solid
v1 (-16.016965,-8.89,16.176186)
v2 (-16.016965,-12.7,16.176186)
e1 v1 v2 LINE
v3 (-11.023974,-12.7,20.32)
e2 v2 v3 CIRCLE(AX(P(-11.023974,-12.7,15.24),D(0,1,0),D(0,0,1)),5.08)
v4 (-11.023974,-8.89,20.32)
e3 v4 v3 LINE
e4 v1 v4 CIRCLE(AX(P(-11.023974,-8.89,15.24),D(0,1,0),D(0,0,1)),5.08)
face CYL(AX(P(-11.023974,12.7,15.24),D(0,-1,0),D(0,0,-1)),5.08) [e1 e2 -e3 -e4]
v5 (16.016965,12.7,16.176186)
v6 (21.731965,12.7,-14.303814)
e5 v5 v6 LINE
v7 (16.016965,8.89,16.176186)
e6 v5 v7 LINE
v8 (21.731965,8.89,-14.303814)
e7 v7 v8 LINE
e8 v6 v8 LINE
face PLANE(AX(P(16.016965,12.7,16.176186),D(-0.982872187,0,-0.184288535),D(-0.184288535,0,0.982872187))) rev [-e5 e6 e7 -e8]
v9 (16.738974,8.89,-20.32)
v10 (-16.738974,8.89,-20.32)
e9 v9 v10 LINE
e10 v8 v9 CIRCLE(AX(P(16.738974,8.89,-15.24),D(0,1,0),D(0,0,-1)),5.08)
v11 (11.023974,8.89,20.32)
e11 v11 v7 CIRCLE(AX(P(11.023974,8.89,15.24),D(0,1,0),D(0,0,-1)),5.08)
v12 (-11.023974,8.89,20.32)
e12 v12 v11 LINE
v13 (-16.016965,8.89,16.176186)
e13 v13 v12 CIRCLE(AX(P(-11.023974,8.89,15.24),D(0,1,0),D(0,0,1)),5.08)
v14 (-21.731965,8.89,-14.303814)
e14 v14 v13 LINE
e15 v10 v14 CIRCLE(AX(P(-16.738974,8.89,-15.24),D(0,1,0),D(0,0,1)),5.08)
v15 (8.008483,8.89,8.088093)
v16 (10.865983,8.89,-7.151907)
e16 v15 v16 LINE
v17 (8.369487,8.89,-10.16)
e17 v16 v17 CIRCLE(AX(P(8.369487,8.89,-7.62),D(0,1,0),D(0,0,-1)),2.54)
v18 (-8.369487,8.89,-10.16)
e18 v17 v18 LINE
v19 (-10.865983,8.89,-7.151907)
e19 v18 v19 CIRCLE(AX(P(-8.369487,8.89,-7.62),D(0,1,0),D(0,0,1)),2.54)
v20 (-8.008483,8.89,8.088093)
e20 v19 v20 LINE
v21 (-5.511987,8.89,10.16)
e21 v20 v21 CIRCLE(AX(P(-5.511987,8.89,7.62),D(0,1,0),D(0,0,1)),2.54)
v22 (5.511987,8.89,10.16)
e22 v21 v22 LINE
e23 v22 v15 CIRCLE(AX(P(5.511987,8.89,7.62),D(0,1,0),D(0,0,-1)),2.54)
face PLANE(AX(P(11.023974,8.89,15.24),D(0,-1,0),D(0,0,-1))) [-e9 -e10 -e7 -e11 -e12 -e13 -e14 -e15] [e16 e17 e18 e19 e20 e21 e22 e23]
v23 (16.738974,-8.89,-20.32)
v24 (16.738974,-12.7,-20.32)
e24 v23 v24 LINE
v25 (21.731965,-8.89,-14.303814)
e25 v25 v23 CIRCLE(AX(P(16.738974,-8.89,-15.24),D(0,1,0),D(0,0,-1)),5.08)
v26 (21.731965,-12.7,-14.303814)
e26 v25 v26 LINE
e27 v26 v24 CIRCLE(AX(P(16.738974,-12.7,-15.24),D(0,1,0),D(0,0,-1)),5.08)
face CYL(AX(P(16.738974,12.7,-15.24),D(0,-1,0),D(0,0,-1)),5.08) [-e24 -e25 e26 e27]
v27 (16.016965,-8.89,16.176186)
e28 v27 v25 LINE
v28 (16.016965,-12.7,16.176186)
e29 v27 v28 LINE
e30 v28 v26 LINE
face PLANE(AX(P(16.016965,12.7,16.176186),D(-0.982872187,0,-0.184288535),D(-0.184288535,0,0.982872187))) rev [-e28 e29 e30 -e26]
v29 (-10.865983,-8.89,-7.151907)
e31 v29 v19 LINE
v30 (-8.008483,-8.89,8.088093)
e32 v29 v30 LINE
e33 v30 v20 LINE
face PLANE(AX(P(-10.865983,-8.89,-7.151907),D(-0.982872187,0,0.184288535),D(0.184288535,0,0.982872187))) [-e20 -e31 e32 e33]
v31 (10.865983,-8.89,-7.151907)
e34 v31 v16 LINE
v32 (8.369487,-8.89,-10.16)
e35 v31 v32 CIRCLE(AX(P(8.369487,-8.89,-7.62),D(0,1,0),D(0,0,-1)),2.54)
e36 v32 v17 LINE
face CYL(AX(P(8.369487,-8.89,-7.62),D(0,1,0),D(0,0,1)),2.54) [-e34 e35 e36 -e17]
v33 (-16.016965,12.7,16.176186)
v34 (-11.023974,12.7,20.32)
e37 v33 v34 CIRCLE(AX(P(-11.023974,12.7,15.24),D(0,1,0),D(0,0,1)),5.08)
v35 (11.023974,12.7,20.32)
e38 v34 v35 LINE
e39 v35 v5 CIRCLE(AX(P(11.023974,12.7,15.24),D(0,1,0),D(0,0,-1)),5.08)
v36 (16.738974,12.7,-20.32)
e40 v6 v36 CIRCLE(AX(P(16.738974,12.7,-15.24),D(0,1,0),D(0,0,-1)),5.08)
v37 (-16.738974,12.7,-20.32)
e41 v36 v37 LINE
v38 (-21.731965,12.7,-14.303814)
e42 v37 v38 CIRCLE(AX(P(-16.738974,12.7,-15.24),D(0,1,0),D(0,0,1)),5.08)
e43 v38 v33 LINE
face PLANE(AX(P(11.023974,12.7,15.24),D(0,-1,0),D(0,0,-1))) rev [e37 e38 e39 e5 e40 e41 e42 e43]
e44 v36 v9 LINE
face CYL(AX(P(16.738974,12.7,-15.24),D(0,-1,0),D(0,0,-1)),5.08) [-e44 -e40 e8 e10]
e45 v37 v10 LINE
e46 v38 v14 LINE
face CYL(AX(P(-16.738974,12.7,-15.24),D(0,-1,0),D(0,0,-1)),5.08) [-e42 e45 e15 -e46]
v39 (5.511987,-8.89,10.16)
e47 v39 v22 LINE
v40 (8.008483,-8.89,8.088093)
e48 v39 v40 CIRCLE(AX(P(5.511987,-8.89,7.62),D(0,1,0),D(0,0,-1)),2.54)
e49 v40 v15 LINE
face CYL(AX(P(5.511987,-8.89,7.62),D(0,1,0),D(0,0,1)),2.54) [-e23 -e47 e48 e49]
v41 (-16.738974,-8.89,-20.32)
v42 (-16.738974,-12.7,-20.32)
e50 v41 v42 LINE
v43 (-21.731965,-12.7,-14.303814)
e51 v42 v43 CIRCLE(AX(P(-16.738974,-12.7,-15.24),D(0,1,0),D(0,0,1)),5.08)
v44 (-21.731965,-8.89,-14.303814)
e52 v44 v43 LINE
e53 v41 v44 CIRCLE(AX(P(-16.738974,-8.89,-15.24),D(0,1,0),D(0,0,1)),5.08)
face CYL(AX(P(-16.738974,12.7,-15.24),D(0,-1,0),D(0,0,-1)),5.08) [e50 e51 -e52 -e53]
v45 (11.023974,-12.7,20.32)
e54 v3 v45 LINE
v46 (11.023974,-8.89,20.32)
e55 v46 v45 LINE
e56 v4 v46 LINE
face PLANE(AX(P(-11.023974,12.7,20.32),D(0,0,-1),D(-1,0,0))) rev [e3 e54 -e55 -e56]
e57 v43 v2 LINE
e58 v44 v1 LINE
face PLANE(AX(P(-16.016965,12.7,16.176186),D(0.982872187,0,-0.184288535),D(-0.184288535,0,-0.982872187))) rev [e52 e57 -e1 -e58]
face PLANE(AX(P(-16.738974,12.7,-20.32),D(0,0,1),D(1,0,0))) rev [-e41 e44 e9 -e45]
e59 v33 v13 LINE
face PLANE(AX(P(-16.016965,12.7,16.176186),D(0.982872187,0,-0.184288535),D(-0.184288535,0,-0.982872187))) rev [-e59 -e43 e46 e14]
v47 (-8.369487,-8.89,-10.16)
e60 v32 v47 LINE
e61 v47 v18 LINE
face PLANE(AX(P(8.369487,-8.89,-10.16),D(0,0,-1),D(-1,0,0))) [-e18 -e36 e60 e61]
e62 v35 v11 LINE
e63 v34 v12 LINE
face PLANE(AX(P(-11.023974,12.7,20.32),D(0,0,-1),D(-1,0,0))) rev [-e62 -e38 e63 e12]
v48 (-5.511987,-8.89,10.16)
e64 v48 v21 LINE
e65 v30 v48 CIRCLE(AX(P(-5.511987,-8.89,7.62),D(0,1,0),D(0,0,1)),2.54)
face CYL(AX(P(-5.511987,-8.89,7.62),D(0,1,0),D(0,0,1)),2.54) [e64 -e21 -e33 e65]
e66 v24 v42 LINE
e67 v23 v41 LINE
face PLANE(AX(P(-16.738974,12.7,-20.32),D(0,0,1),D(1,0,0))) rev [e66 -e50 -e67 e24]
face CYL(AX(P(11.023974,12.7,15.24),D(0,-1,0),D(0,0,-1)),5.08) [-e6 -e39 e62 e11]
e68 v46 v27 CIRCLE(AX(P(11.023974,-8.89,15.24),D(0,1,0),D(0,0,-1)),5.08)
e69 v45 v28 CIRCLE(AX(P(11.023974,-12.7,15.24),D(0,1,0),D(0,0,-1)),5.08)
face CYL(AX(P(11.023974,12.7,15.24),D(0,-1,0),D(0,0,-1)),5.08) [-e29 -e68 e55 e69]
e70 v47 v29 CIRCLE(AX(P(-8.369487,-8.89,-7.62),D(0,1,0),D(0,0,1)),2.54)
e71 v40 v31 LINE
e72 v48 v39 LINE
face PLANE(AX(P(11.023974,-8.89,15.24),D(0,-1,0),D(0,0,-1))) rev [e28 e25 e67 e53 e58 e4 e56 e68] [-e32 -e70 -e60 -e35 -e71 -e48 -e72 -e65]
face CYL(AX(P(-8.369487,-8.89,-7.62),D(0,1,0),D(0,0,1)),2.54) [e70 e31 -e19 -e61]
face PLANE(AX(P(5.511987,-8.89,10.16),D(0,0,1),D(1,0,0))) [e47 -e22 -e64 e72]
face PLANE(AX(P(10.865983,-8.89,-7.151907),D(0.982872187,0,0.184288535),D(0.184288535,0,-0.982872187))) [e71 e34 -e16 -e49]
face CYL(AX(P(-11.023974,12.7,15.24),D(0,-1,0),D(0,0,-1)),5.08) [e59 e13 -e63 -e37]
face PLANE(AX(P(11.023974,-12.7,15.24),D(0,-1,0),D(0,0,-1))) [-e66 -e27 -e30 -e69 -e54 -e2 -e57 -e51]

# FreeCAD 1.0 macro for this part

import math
import FreeCAD as App
import Part
import Sketcher
from FreeCAD import Vector
Q = App.Units.Quantity

doc = App.newDocument("Part")
params = doc.addObject("Spreadsheet::Sheet", "Params")
for row, (alias, value) in enumerate([
    ("sketch1_radius", "0.2 in"),
    ("pad1_length", "1 in"),
    ("sketch2_radius", "0.2 in"),
    ("sketch2_radius2", "0.1 in"),
    ("pocket1_length", "0.7 in"),
], start=1):
    params.set(f"A{row}", alias)
    params.set(f"B{row}", "=" + value)
    params.setAlias(f"B{row}", alias)

body = doc.addObject("PartDesign::Body", "Body")

# Sketch on XZ plane
sketch1 = doc.addObject("Sketcher::SketchObject", "Sketch")
body.addObject(sketch1)
sketch1.AttachmentSupport = (doc.XZ_Plane, [""])
sketch1.MapMode = "FlatFace"
sketch1.addGeometry(Part.LineSegment(Vector(16.738974, -20.32, 0), Vector(-16.738974, -20.32, 0)), False)
sketch1.addGeometry(Part.ArcOfCircle(Part.Circle(Vector(-16.738974, -15.24, 0), Vector(0, 0, 1), 5.08), math.radians(169.380345), math.radians(270)), False)
sketch1.addGeometry(Part.LineSegment(Vector(-21.731965, -14.303814, 0), Vector(-16.016965, 16.176186, 0)), False)
sketch1.addGeometry(Part.ArcOfCircle(Part.Circle(Vector(-11.023974, 15.24, 0), Vector(0, 0, 1), 5.08), math.radians(90), math.radians(169.380345)), False)
sketch1.addGeometry(Part.LineSegment(Vector(-11.023974, 20.32, 0), Vector(11.023974, 20.32, 0)), False)
sketch1.addGeometry(Part.ArcOfCircle(Part.Circle(Vector(11.023974, 15.24, 0), Vector(0, 0, 1), 5.08), math.radians(10.619655), math.radians(90)), False)
sketch1.addGeometry(Part.LineSegment(Vector(16.016965, 16.176186, 0), Vector(21.731965, -14.303814, 0)), False)
sketch1.addGeometry(Part.ArcOfCircle(Part.Circle(Vector(16.738974, -15.24, 0), Vector(0, 0, 1), 5.08), math.radians(-90), math.radians(10.619655)), False)
sketch1.addConstraint(Sketcher.Constraint("Tangent", 0, 2, 1, 2))
sketch1.addConstraint(Sketcher.Constraint("Tangent", 1, 1, 2, 1))
sketch1.addConstraint(Sketcher.Constraint("Tangent", 2, 2, 3, 2))
sketch1.addConstraint(Sketcher.Constraint("Tangent", 3, 1, 4, 1))
sketch1.addConstraint(Sketcher.Constraint("Tangent", 4, 2, 5, 2))
sketch1.addConstraint(Sketcher.Constraint("Tangent", 5, 1, 6, 1))
sketch1.addConstraint(Sketcher.Constraint("Tangent", 6, 2, 7, 2))
sketch1.addConstraint(Sketcher.Constraint("Tangent", 7, 1, 0, 1))
sketch1.addConstraint(Sketcher.Constraint("Horizontal", 0))
sketch1.addConstraint(Sketcher.Constraint("Horizontal", 4))
sketch1.addConstraint(Sketcher.Constraint("Equal", 1, 3))
sketch1.addConstraint(Sketcher.Constraint("Equal", 3, 5))
sketch1.addConstraint(Sketcher.Constraint("Equal", 5, 7))
sketch1.addConstraint(Sketcher.Constraint("Symmetric", 2, 2, 5, 1, -2))
sketch1.addConstraint(Sketcher.Constraint("Radius", 1, Q("0.2 in")))
sketch1.addConstraint(Sketcher.Constraint("DistanceY", 1, 3, -1, 1, Q("0.6 in")))
sketch1.addConstraint(Sketcher.Constraint("DistanceY", -1, 1, 3, 3, Q("0.6 in")))
sketch1.addConstraint(Sketcher.Constraint("DistanceX", 1, 3, 3, 3, Q("0.225 in")))
sketch1.addConstraint(Sketcher.Constraint("DistanceX", 0, 2, 0, 1, Q("33.477949 mm")))
sketch1.setExpression("Constraints[14]", "Params.sketch1_radius")
pad1 = doc.addObject("PartDesign::Pad", "Pad")
body.addObject(pad1)
pad1.Profile = sketch1
pad1.setExpression("Length", "Params.pad1_length")
pad1.Midplane = True

# Sketch on XZ plane
sketch2 = doc.addObject("Sketcher::SketchObject", "Sketch001")
body.addObject(sketch2)
sketch2.AttachmentSupport = (doc.XZ_Plane, [""])
sketch2.MapMode = "FlatFace"
sketch2.addGeometry(Part.LineSegment(Vector(16.738974, -20.32, 0), Vector(-16.738974, -20.32, 0)), False)
sketch2.addGeometry(Part.ArcOfCircle(Part.Circle(Vector(-16.738974, -15.24, 0), Vector(0, 0, 1), 5.08), math.radians(169.380345), math.radians(270)), False)
sketch2.addGeometry(Part.LineSegment(Vector(-21.731965, -14.303814, 0), Vector(-16.016965, 16.176186, 0)), False)
sketch2.addGeometry(Part.ArcOfCircle(Part.Circle(Vector(-11.023974, 15.24, 0), Vector(0, 0, 1), 5.08), math.radians(90), math.radians(169.380345)), False)
sketch2.addGeometry(Part.LineSegment(Vector(-11.023974, 20.32, 0), Vector(11.023974, 20.32, 0)), False)
sketch2.addGeometry(Part.ArcOfCircle(Part.Circle(Vector(11.023974, 15.24, 0), Vector(0, 0, 1), 5.08), math.radians(10.619655), math.radians(90)), False)
sketch2.addGeometry(Part.LineSegment(Vector(16.016965, 16.176186, 0), Vector(21.731965, -14.303814, 0)), False)
sketch2.addGeometry(Part.ArcOfCircle(Part.Circle(Vector(16.738974, -15.24, 0), Vector(0, 0, 1), 5.08), math.radians(-90), math.radians(10.619655)), False)
sketch2.addGeometry(Part.LineSegment(Vector(5.511987, 10.16, 0), Vector(-5.511987, 10.16, 0)), False)
sketch2.addGeometry(Part.ArcOfCircle(Part.Circle(Vector(-5.511987, 7.62, 0), Vector(0, 0, 1), 2.54), math.radians(90), math.radians(169.380345)), False)
sketch2.addGeometry(Part.LineSegment(Vector(-8.008483, 8.088093, 0), Vector(-10.865983, -7.151907, 0)), False)
sketch2.addGeometry(Part.ArcOfCircle(Part.Circle(Vector(-8.369487, -7.62, 0), Vector(0, 0, 1), 2.54), math.radians(169.380345), math.radians(270)), False)
sketch2.addGeometry(Part.LineSegment(Vector(-8.369487, -10.16, 0), Vector(8.369487, -10.16, 0)), False)
sketch2.addGeometry(Part.ArcOfCircle(Part.Circle(Vector(8.369487, -7.62, 0), Vector(0, 0, 1), 2.54), math.radians(-90), math.radians(10.619655)), False)
sketch2.addGeometry(Part.LineSegment(Vector(10.865983, -7.151907, 0), Vector(8.008483, 8.088093, 0)), False)
sketch2.addGeometry(Part.ArcOfCircle(Part.Circle(Vector(5.511987, 7.62, 0), Vector(0, 0, 1), 2.54), math.radians(10.619655), math.radians(90)), False)
sketch2.addConstraint(Sketcher.Constraint("Tangent", 0, 2, 1, 2))
sketch2.addConstraint(Sketcher.Constraint("Tangent", 1, 1, 2, 1))
sketch2.addConstraint(Sketcher.Constraint("Tangent", 2, 2, 3, 2))
sketch2.addConstraint(Sketcher.Constraint("Tangent", 3, 1, 4, 1))
sketch2.addConstraint(Sketcher.Constraint("Tangent", 4, 2, 5, 2))
sketch2.addConstraint(Sketcher.Constraint("Tangent", 5, 1, 6, 1))
sketch2.addConstraint(Sketcher.Constraint("Tangent", 6, 2, 7, 2))
sketch2.addConstraint(Sketcher.Constraint("Tangent", 7, 1, 0, 1))
sketch2.addConstraint(Sketcher.Constraint("Tangent", 8, 2, 9, 1))
sketch2.addConstraint(Sketcher.Constraint("Tangent", 9, 2, 10, 1))
sketch2.addConstraint(Sketcher.Constraint("Tangent", 10, 2, 11, 1))
sketch2.addConstraint(Sketcher.Constraint("Tangent", 11, 2, 12, 1))
sketch2.addConstraint(Sketcher.Constraint("Tangent", 12, 2, 13, 1))
sketch2.addConstraint(Sketcher.Constraint("Tangent", 13, 2, 14, 1))
sketch2.addConstraint(Sketcher.Constraint("Tangent", 14, 2, 15, 1))
sketch2.addConstraint(Sketcher.Constraint("Tangent", 15, 2, 8, 1))
sketch2.addConstraint(Sketcher.Constraint("Horizontal", 0))
sketch2.addConstraint(Sketcher.Constraint("Horizontal", 4))
sketch2.addConstraint(Sketcher.Constraint("Horizontal", 8))
sketch2.addConstraint(Sketcher.Constraint("Horizontal", 12))
sketch2.addConstraint(Sketcher.Constraint("Equal", 1, 3))
sketch2.addConstraint(Sketcher.Constraint("Equal", 3, 5))
sketch2.addConstraint(Sketcher.Constraint("Equal", 5, 7))
sketch2.addConstraint(Sketcher.Constraint("Equal", 9, 11))
sketch2.addConstraint(Sketcher.Constraint("Equal", 11, 13))
sketch2.addConstraint(Sketcher.Constraint("Equal", 13, 15))
sketch2.addConstraint(Sketcher.Constraint("Symmetric", 2, 2, 5, 1, -2))
sketch2.addConstraint(Sketcher.Constraint("Symmetric", 10, 2, 13, 2, -2))
sketch2.addConstraint(Sketcher.Constraint("Parallel", 2, 10))
sketch2.addConstraint(Sketcher.Constraint("Radius", 1, Q("0.2 in")))
sketch2.addConstraint(Sketcher.Constraint("Radius", 9, Q("0.1 in")))
sketch2.addConstraint(Sketcher.Constraint("DistanceY", 1, 3, -1, 1, Q("0.6 in")))
sketch2.addConstraint(Sketcher.Constraint("DistanceY", -1, 1, 3, 3, Q("0.6 in")))
sketch2.addConstraint(Sketcher.Constraint("DistanceY", -1, 1, 9, 3, Q("0.3 in")))
sketch2.addConstraint(Sketcher.Constraint("DistanceY", 11, 3, -1, 1, Q("0.3 in")))
sketch2.addConstraint(Sketcher.Constraint("DistanceX", 1, 3, 3, 3, Q("0.225 in")))
sketch2.addConstraint(Sketcher.Constraint("DistanceX", 0, 2, 0, 1, Q("33.477949 mm")))
sketch2.addConstraint(Sketcher.Constraint("DistanceX", 8, 2, 8, 1, Q("11.023974 mm")))
sketch2.setExpression("Constraints[29]", "Params.sketch2_radius")
sketch2.setExpression("Constraints[30]", "Params.sketch2_radius2")
pocket1 = doc.addObject("PartDesign::Pocket", "Pocket")
body.addObject(pocket1)
pocket1.Profile = sketch2
pocket1.setExpression("Length", "Params.pocket1_length")
pocket1.Midplane = True

doc.recompute()
